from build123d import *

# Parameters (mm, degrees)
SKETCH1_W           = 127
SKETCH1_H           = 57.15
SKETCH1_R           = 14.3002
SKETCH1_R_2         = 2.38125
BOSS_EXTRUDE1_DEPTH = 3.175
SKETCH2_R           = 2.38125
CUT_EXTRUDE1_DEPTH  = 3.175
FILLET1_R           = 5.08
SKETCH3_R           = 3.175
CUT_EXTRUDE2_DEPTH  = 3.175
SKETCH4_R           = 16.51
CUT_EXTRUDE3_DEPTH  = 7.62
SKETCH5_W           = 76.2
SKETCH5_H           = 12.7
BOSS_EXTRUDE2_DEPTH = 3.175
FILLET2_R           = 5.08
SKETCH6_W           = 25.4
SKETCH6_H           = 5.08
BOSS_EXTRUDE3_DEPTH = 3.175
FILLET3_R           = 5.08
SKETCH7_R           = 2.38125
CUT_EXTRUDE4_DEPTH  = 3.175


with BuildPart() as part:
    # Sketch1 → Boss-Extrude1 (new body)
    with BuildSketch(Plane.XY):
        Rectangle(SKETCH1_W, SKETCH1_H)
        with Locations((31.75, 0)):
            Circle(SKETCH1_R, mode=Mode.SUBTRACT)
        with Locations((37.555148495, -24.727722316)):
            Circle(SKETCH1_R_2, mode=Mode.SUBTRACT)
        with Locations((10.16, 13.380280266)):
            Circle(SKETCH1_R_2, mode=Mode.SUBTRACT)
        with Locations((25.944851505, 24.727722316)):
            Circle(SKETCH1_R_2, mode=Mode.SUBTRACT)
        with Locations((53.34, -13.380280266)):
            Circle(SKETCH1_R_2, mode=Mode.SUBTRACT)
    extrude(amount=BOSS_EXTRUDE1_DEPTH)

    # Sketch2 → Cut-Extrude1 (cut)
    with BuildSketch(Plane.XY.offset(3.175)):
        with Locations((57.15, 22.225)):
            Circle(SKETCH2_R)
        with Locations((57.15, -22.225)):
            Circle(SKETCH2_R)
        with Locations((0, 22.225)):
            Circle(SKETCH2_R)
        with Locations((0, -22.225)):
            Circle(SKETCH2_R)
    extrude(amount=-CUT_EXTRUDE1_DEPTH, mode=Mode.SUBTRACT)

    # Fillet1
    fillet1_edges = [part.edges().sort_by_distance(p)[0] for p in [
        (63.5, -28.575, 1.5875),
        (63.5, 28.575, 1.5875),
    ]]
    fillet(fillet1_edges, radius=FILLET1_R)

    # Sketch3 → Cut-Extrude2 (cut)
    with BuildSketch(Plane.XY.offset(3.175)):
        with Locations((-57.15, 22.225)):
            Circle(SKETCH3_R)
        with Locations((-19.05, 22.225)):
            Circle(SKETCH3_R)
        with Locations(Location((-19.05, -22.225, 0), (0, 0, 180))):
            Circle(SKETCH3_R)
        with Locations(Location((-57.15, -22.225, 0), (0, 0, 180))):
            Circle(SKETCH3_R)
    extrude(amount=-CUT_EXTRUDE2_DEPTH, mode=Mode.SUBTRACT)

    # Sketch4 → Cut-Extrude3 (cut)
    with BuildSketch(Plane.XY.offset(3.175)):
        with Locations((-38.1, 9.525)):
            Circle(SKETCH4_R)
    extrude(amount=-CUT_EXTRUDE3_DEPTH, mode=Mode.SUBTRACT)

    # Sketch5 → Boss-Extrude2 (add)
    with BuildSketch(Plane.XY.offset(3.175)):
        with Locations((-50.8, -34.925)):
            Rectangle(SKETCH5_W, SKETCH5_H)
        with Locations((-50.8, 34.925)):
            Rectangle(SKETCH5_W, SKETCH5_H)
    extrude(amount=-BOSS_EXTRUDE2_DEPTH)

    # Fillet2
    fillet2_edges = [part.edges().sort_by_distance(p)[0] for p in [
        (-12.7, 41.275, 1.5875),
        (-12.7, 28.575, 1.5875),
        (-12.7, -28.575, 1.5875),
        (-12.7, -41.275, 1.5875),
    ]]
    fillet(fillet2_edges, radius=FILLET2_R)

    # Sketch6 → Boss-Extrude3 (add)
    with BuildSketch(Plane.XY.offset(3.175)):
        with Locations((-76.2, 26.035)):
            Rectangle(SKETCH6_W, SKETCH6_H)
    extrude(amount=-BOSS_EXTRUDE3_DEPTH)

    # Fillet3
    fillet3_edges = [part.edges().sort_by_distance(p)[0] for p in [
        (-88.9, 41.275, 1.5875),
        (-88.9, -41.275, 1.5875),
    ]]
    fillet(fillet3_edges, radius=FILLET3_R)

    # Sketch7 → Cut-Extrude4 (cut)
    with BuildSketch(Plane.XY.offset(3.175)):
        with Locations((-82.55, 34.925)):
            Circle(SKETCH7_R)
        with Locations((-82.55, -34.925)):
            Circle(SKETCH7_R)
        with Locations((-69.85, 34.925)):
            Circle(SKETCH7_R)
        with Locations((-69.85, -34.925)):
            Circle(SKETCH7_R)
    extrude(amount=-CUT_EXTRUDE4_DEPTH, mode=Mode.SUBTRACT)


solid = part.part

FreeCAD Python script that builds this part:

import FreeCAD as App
import Part
import Sketcher

V = App.Vector
Q = App.Units.Quantity


def edges_at(feature, points):
    """Names of the edges that pass closest to the given points."""
    edges = feature.Shape.Edges
    near = lambda p: min(range(len(edges)), key=lambda i: edges[i].distToShape(Part.Vertex(*p))[0])
    return sorted({f"Edge{near(p) + 1}" for p in points})


def add_polygon(sketch, points):
    """Adds a closed chain of lines whose ends are joined by coincident constraints."""
    first, n = sketch.GeometryCount, len(points)
    for a, b in zip(points, points[1:] + points[:1]):
        sketch.addGeometry(Part.LineSegment(App.Vector(*a, 0), App.Vector(*b, 0)), False)
    for i in range(n):
        sketch.addConstraint(Sketcher.Constraint("Coincident", first + i, 2, first + (i + 1) % n, 1))

doc = App.newDocument("Part")
params = doc.addObject("Spreadsheet::Sheet", "Params")
for row, (alias, value) in enumerate([
    ("sketch1_width", "5 in"),
    ("sketch1_diameter", "0.1875 in"),
    ("sketch1_diameter2", "1.126 in"),
    ("sketch1_height", "2.25 in"),
    ("pad1_length", "0.125 in"),
    ("sketch2_diameter", "0.1875 in"),
    ("pocket1_length", "0.125 in"),
    ("fillet_radius", "0.2 in"),
    ("sketch3_diameter", "0.25 in"),
    ("pocket2_length", "0.125 in"),
    ("sketch4_diameter", "1.3 in"),
    ("pocket3_length", "0.3 in"),
    ("sketch5_width", "3 in"),
    ("sketch5_height", "0.5 in"),
    ("pad2_length", "0.125 in"),
    ("fillet2_radius", "0.2 in"),
    ("sketch6_width", "1 in"),
    ("sketch6_height", "0.2 in"),
    ("pad3_length", "0.125 in"),
    ("fillet3_radius", "0.2 in"),
    ("sketch7_diameter", "0.1875 in"),
    ("pocket4_length", "0.125 in"),
], start=1):
    params.set(f"A{row}", alias)
    params.set(f"B{row}", "=" + value)
    params.setAlias(f"B{row}", alias)

body = doc.addObject("PartDesign::Body", "Body")

sketch1 = body.newObject("Sketcher::SketchObject", "Sketch")
sketch1.AttachmentSupport = (doc.getObject("XY_Plane"), [""])
sketch1.MapMode = "FlatFace"
add_polygon(sketch1, [(-63.5, 28.575), (-63.5, -28.575), (63.5, -28.575), (63.5, 28.575)])
sketch1.addGeometry(Part.Circle(V(37.555148, -24.727722, 0), V(0, 0, 1), 2.38125), False)
sketch1.addGeometry(Part.Circle(V(53.34, -13.38028, 0), V(0, 0, 1), 2.38125), False)
sketch1.addGeometry(Part.Circle(V(10.16, 13.38028, 0), V(0, 0, 1), 2.38125), False)
sketch1.addGeometry(Part.Circle(V(31.75, 0, 0), V(0, 0, 1), 14.3002), False)
sketch1.addGeometry(Part.Circle(V(25.944852, 24.727722, 0), V(0, 0, 1), 2.38125), False)
sketch1.addConstraint([
    Sketcher.Constraint("Vertical", 0),
    Sketcher.Constraint("Horizontal", 1),
    Sketcher.Constraint("Vertical", 2),
    Sketcher.Constraint("Horizontal", 3),
    Sketcher.Constraint("Equal", 4, 5),
    Sketcher.Constraint("Equal", 5, 6),
    Sketcher.Constraint("Equal", 6, 8),
    Sketcher.Constraint("Symmetric", 0, 2, 2, 2, -1, 1),
    Sketcher.Constraint("PointOnObject", 7, 3, -1),
    Sketcher.Constraint("DistanceX", 1, 1, 1, 2, Q("5 in")),
    Sketcher.Constraint("Diameter", 4, Q("0.1875 in")),
    Sketcher.Constraint("Diameter", 7, Q("1.126 in")),
    Sketcher.Constraint("DistanceY", 0, 2, 0, 1, Q("2.25 in")),
    Sketcher.Constraint("DistanceX", -1, 1, 5, 3, Q("2.1 in")),
    Sketcher.Constraint("DistanceX", -1, 1, 6, 3, Q("0.4 in")),
    Sketcher.Constraint("DistanceX", -1, 1, 7, 3, Q("1.25 in")),
    Sketcher.Constraint("DistanceX", -1, 1, 4, 3, Q("37.555148 mm")),
    Sketcher.Constraint("DistanceY", 5, 3, -1, 1, Q("13.38028 mm")),
    Sketcher.Constraint("DistanceY", -1, 1, 6, 3, Q("13.38028 mm")),
    Sketcher.Constraint("DistanceX", -1, 1, 8, 3, Q("25.944852 mm")),
    Sketcher.Constraint("DistanceY", 4, 3, -1, 1, Q("24.727722 mm")),
    Sketcher.Constraint("DistanceY", -1, 1, 8, 3, Q("24.727722 mm")),
])
sketch1.setExpression("Constraints[13]", "Params.sketch1_width")
sketch1.setExpression("Constraints[14]", "Params.sketch1_diameter")
sketch1.setExpression("Constraints[15]", "Params.sketch1_diameter2")
sketch1.setExpression("Constraints[16]", "Params.sketch1_height")
pad1 = body.newObject("PartDesign::Pad", "Pad")
pad1.Profile = sketch1
pad1.setExpression("Length", "Params.pad1_length")

sketch2 = body.newObject("Sketcher::SketchObject", "Sketch001")
sketch2.AttachmentSupport = (doc.getObject("XY_Plane"), [""])
sketch2.MapMode = "FlatFace"
sketch2.AttachmentOffset = App.Placement(V(0, 0, 0.125 * 25.4), App.Rotation())
sketch2.addGeometry([
    Part.Circle(V(57.15, 22.225, 0), V(0, 0, 1), 2.38125),
    Part.Circle(V(57.15, -22.225, 0), V(0, 0, 1), 2.38125),
    Part.Circle(V(0, 22.225, 0), V(0, 0, 1), 2.38125),
    Part.Circle(V(0, -22.225, 0), V(0, 0, 1), 2.38125),
], False)
sketch2.addConstraint([
    Sketcher.Constraint("Equal", 0, 1),
    Sketcher.Constraint("Equal", 1, 2),
    Sketcher.Constraint("Equal", 2, 3),
    Sketcher.Constraint("Symmetric", 2, 3, 3, 3, -1, 1),
    Sketcher.Constraint("Symmetric", 0, 3, 1, 3, -1),
    Sketcher.Constraint("PointOnObject", 2, 3, -2),
    Sketcher.Constraint("Horizontal", 0, 3, 2, 3),
    Sketcher.Constraint("Diameter", 0, Q("0.1875 in")),
    Sketcher.Constraint("DistanceX", -1, 1, 0, 3, Q("2.25 in")),
    Sketcher.Constraint("DistanceY", 1, 3, 0, 3, Q("1.75 in")),
])
sketch2.setExpression("Constraints[7]", "Params.sketch2_diameter")
pocket1 = body.newObject("PartDesign::Pocket", "Pocket")
pocket1.Profile = sketch2
pocket1.setExpression("Length", "Params.pocket1_length")
doc.recompute()

fillet = body.newObject("PartDesign::Fillet", "Fillet")
fillet.Base = (pocket1, edges_at(pocket1, [(63.5, -28.575, 1.587), (63.5, 28.575, 1.587)]))
fillet.setExpression("Radius", "Params.fillet_radius")

sketch3 = body.newObject("Sketcher::SketchObject", "Sketch002")
sketch3.AttachmentSupport = (doc.getObject("XY_Plane"), [""])
sketch3.MapMode = "FlatFace"
sketch3.AttachmentOffset = App.Placement(V(0, 0, 0.125 * 25.4), App.Rotation())
sketch3.addGeometry([
    Part.Circle(V(-57.15, 22.225, 0), V(0, 0, 1), 3.175),
    Part.Circle(V(-19.05, 22.225, 0), V(0, 0, 1), 3.175),
    Part.Circle(V(-19.05, -22.225, 0), V(0, 0, 1), 3.175),
    Part.Circle(V(-57.15, -22.225, 0), V(0, 0, 1), 3.175),
], False)
sketch3.addConstraint([
    Sketcher.Constraint("Equal", 0, 1),
    Sketcher.Constraint("Equal", 1, 2),
    Sketcher.Constraint("Equal", 2, 3),
    Sketcher.Constraint("Symmetric", 1, 3, 2, 3, -1),
    Sketcher.Constraint("Symmetric", 0, 3, 3, 3, -1),
    Sketcher.Constraint("Horizontal", 0, 3, 1, 3),
    Sketcher.Constraint("Diameter", 0, Q("0.25 in")),
    Sketcher.Constraint("DistanceX", 0, 3, 1, 3, Q("1.5 in")),
    Sketcher.Constraint("DistanceX", 0, 3, -1, 1, Q("2.25 in")),
    Sketcher.Constraint("DistanceY", 2, 3, 1, 3, Q("1.75 in")),
])
sketch3.setExpression("Constraints[6]", "Params.sketch3_diameter")
pocket2 = body.newObject("PartDesign::Pocket", "Pocket001")
pocket2.Profile = sketch3
pocket2.setExpression("Length", "Params.pocket2_length")

sketch4 = body.newObject("Sketcher::SketchObject", "Sketch003")
sketch4.AttachmentSupport = (doc.getObject("XY_Plane"), [""])
sketch4.MapMode = "FlatFace"
sketch4.AttachmentOffset = App.Placement(V(0, 0, 0.125 * 25.4), App.Rotation())
sketch4.addGeometry(Part.Circle(V(-38.1, 9.525, 0), V(0, 0, 1), 16.51), False)
sketch4.addConstraint([
    Sketcher.Constraint("Diameter", 0, Q("1.3 in")),
    Sketcher.Constraint("DistanceX", 0, 3, -1, 1, Q("1.5 in")),
    Sketcher.Constraint("DistanceY", -1, 1, 0, 3, Q("0.375 in")),
])
sketch4.setExpression("Constraints[0]", "Params.sketch4_diameter")
pocket3 = body.newObject("PartDesign::Pocket", "Pocket002")
pocket3.Profile = sketch4
pocket3.setExpression("Length", "Params.pocket3_length")

sketch5 = body.newObject("Sketcher::SketchObject", "Sketch004")
sketch5.AttachmentSupport = (doc.getObject("XY_Plane"), [""])
sketch5.MapMode = "FlatFace"
sketch5.AttachmentOffset = App.Placement(V(0, 0, 0.125 * 25.4), App.Rotation())
add_polygon(sketch5, [(-88.9, -28.575), (-88.9, -41.275), (-12.7, -41.275), (-12.7, -28.575)])
add_polygon(sketch5, [(-88.9, 41.275), (-88.9, 28.575), (-12.7, 28.575), (-12.7, 41.275)])
sketch5.addConstraint([
    Sketcher.Constraint("Vertical", 0),
    Sketcher.Constraint("Horizontal", 1),
    Sketcher.Constraint("Vertical", 2),
    Sketcher.Constraint("Horizontal", 3),
    Sketcher.Constraint("Vertical", 4),
    Sketcher.Constraint("Horizontal", 5),
    Sketcher.Constraint("Vertical", 6),
    Sketcher.Constraint("Horizontal", 7),
    Sketcher.Constraint("Symmetric", 3, 2, 4, 2, -1),
    Sketcher.Constraint("Symmetric", 1, 2, 6, 2, -1),
    Sketcher.Constraint("DistanceX", 1, 1, 1, 2, Q("3 in")),
    Sketcher.Constraint("DistanceY", 0, 2, 0, 1, Q("0.5 in")),
    Sketcher.Constraint("DistanceX", 0, 2, -1, 1, Q("3.5 in")),
    Sketcher.Constraint("DistanceY", 3, 2, 4, 2, Q("2.25 in")),
])
sketch5.setExpression("Constraints[18]", "Params.sketch5_width")
sketch5.setExpression("Constraints[19]", "Params.sketch5_height")
pad2 = body.newObject("PartDesign::Pad", "Pad001")
pad2.Profile = sketch5
pad2.setExpression("Length", "Params.pad2_length")
pad2.Reversed = True
doc.recompute()

fillet2 = body.newObject("PartDesign::Fillet", "Fillet001")
fillet2.Base = (pad2, edges_at(pad2, [
    (-12.7, 41.275, 1.587),
    (-12.7, 28.575, 1.587),
    (-12.7, -28.575, 1.587),
    (-12.7, -41.275, 1.587),
]))
fillet2.setExpression("Radius", "Params.fillet2_radius")

sketch6 = body.newObject("Sketcher::SketchObject", "Sketch005")
sketch6.AttachmentSupport = (doc.getObject("XY_Plane"), [""])
sketch6.MapMode = "FlatFace"
sketch6.AttachmentOffset = App.Placement(V(0, 0, 0.125 * 25.4), App.Rotation())
add_polygon(sketch6, [(-88.9, 28.575), (-88.9, 23.495), (-63.5, 23.495), (-63.5, 28.575)])
sketch6.addConstraint([
    Sketcher.Constraint("Vertical", 0),
    Sketcher.Constraint("Horizontal", 1),
    Sketcher.Constraint("Vertical", 2),
    Sketcher.Constraint("Horizontal", 3),
    Sketcher.Constraint("DistanceX", 1, 1, 1, 2, Q("1 in")),
    Sketcher.Constraint("DistanceY", 0, 2, 0, 1, Q("0.2 in")),
    Sketcher.Constraint("DistanceX", 0, 2, -1, 1, Q("3.5 in")),
    Sketcher.Constraint("DistanceY", -1, 1, 0, 2, Q("0.925 in")),
])
sketch6.setExpression("Constraints[8]", "Params.sketch6_width")
sketch6.setExpression("Constraints[9]", "Params.sketch6_height")
pad3 = body.newObject("PartDesign::Pad", "Pad002")
pad3.Profile = sketch6
pad3.setExpression("Length", "Params.pad3_length")
pad3.Reversed = True
doc.recompute()

fillet3 = body.newObject("PartDesign::Fillet", "Fillet002")
fillet3.Base = (pad3, edges_at(pad3, [(-88.9, 41.275, 1.587), (-88.9, -41.275, 1.587)]))
fillet3.setExpression("Radius", "Params.fillet3_radius")

sketch7 = body.newObject("Sketcher::SketchObject", "Sketch006")
sketch7.AttachmentSupport = (doc.getObject("XY_Plane"), [""])
sketch7.MapMode = "FlatFace"
sketch7.AttachmentOffset = App.Placement(V(0, 0, 0.125 * 25.4), App.Rotation())
sketch7.addGeometry([
    Part.Circle(V(-82.55, 34.925, 0), V(0, 0, 1), 2.38125),
    Part.Circle(V(-82.55, -34.925, 0), V(0, 0, 1), 2.38125),
    Part.Circle(V(-69.85, 34.925, 0), V(0, 0, 1), 2.38125),
    Part.Circle(V(-69.85, -34.925, 0), V(0, 0, 1), 2.38125),
], False)
sketch7.addConstraint([
    Sketcher.Constraint("Equal", 0, 1),
    Sketcher.Constraint("Equal", 1, 2),
    Sketcher.Constraint("Equal", 2, 3),
    Sketcher.Constraint("Symmetric", 0, 3, 1, 3, -1),
    Sketcher.Constraint("Symmetric", 2, 3, 3, 3, -1),
    Sketcher.Constraint("Horizontal", 0, 3, 2, 3),
    Sketcher.Constraint("Diameter", 0, Q("0.1875 in")),
    Sketcher.Constraint("DistanceX", 0, 3, 2, 3, Q("0.5 in")),
    Sketcher.Constraint("DistanceX", 0, 3, -1, 1, Q("3.25 in")),
    Sketcher.Constraint("DistanceY", 1, 3, 0, 3, Q("2.75 in")),
])
sketch7.setExpression("Constraints[6]", "Params.sketch7_diameter")
pocket4 = body.newObject("PartDesign::Pocket", "Pocket003")
pocket4.Profile = sketch7
pocket4.setExpression("Length", "Params.pocket4_length")

doc.recompute()
